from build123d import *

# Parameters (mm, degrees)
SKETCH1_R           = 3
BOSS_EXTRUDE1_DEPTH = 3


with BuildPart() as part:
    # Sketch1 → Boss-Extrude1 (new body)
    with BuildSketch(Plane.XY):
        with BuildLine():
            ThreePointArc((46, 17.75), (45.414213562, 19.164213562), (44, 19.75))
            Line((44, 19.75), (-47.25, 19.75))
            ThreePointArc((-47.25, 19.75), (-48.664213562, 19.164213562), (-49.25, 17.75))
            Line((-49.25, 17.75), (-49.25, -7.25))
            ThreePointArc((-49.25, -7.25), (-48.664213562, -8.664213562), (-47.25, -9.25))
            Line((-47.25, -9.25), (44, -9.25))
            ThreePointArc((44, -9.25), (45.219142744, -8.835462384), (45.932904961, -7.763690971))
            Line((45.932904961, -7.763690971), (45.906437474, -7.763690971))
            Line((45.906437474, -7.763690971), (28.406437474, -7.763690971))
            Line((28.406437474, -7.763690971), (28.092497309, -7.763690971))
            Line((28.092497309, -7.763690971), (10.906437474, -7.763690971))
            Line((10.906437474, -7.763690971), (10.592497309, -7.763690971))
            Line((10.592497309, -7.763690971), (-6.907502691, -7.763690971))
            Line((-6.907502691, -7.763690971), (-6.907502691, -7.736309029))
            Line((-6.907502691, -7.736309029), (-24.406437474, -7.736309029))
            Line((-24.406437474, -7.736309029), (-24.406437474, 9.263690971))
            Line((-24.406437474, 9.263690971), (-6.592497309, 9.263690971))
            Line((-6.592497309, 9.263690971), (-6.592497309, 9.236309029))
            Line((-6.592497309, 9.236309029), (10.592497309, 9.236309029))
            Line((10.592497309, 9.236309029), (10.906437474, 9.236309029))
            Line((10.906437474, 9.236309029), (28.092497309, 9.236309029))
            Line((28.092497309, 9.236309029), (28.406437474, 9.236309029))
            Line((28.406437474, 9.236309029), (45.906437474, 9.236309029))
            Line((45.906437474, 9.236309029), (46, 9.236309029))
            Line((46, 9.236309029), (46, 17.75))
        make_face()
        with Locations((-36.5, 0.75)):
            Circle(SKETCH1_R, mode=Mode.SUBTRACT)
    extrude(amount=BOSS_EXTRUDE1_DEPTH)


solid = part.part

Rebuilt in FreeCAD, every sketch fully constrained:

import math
import FreeCAD as App
import Part
import Sketcher

V = App.Vector
Q = App.Units.Quantity

doc = App.newDocument("Part")
body = doc.addObject("PartDesign::Body", "Body")

# Sketch on XY plane
sketch1 = body.newObject("Sketcher::SketchObject", "Sketch")
sketch1.AttachmentSupport = (doc.getObject("XY_Plane"), [""])
sketch1.MapMode = "FlatFace"
sketch1.addGeometry(Part.ArcOfCircle(Part.Circle(V(44, 17.75, 0), V(0, 0, 1), 2), math.radians(0), math.radians(90)), False)
sketch1.addGeometry(Part.LineSegment(V(44, 19.75, 0), V(-47.25, 19.75, 0)), False)
sketch1.addGeometry(Part.ArcOfCircle(Part.Circle(V(-47.25, 17.75, 0), V(0, 0, 1), 2), math.radians(90), math.radians(180)), False)
sketch1.addGeometry(Part.LineSegment(V(-49.25, 17.75, 0), V(-49.25, -7.25, 0)), False)
sketch1.addGeometry(Part.ArcOfCircle(Part.Circle(V(-47.25, -7.25, 0), V(0, 0, 1), 2), math.radians(-180), math.radians(-90)), False)
sketch1.addGeometry(Part.LineSegment(V(-47.25, -9.25, 0), V(44, -9.25, 0)), False)
sketch1.addGeometry(Part.ArcOfCircle(Part.Circle(V(44, -7.25, 0), V(0, 0, 1), 2), math.radians(-90), math.radians(-15)), False)
sketch1.addGeometry(Part.LineSegment(V(45.933, -7.764, 0), V(-6.908, -7.764, 0)), False)
sketch1.addGeometry(Part.LineSegment(V(-6.908, -7.764, 0), V(-6.908, -7.736, 0)), False)
sketch1.addGeometry(Part.LineSegment(V(-6.908, -7.736, 0), V(-24.406, -7.736, 0)), False)
sketch1.addGeometry(Part.LineSegment(V(-24.406, -7.736, 0), V(-24.406, 9.264, 0)), False)
sketch1.addGeometry(Part.LineSegment(V(-24.406, 9.264, 0), V(-6.592, 9.264, 0)), False)
sketch1.addGeometry(Part.LineSegment(V(-6.592, 9.264, 0), V(-6.592, 9.236, 0)), False)
sketch1.addGeometry(Part.LineSegment(V(-6.592, 9.236, 0), V(46, 9.236, 0)), False)
sketch1.addGeometry(Part.LineSegment(V(46, 9.236, 0), V(46, 17.75, 0)), False)
sketch1.addGeometry(Part.Circle(V(-36.5, 0.75, 0), V(0, 0, 1), 3), False)
sketch1.addConstraint(Sketcher.Constraint("Tangent", 0, 2, 1, 1))
sketch1.addConstraint(Sketcher.Constraint("Tangent", 1, 2, 2, 1))
sketch1.addConstraint(Sketcher.Constraint("Tangent", 2, 2, 3, 1))
sketch1.addConstraint(Sketcher.Constraint("Tangent", 3, 2, 4, 1))
sketch1.addConstraint(Sketcher.Constraint("Tangent", 4, 2, 5, 1))
sketch1.addConstraint(Sketcher.Constraint("Tangent", 5, 2, 6, 1))
sketch1.addConstraint(Sketcher.Constraint("Coincident", 6, 2, 7, 1))
sketch1.addConstraint(Sketcher.Constraint("Coincident", 7, 2, 8, 1))
sketch1.addConstraint(Sketcher.Constraint("Coincident", 8, 2, 9, 1))
sketch1.addConstraint(Sketcher.Constraint("Coincident", 9, 2, 10, 1))
sketch1.addConstraint(Sketcher.Constraint("Coincident", 10, 2, 11, 1))
sketch1.addConstraint(Sketcher.Constraint("Coincident", 11, 2, 12, 1))
sketch1.addConstraint(Sketcher.Constraint("Coincident", 12, 2, 13, 1))
sketch1.addConstraint(Sketcher.Constraint("Coincident", 13, 2, 14, 1))
sketch1.addConstraint(Sketcher.Constraint("Tangent", 14, 2, 0, 1))
sketch1.addConstraint(Sketcher.Constraint("Horizontal", 1))
sketch1.addConstraint(Sketcher.Constraint("Vertical", 3))
sketch1.addConstraint(Sketcher.Constraint("Horizontal", 5))
sketch1.addConstraint(Sketcher.Constraint("Horizontal", 7))
sketch1.addConstraint(Sketcher.Constraint("Vertical", 8))
sketch1.addConstraint(Sketcher.Constraint("Horizontal", 9))
sketch1.addConstraint(Sketcher.Constraint("Vertical", 10))
sketch1.addConstraint(Sketcher.Constraint("Horizontal", 11))
sketch1.addConstraint(Sketcher.Constraint("Vertical", 12))
sketch1.addConstraint(Sketcher.Constraint("Horizontal", 13))
sketch1.addConstraint(Sketcher.Constraint("Vertical", 14))
sketch1.addConstraint(Sketcher.Constraint("Equal", 0, 2))
sketch1.addConstraint(Sketcher.Constraint("Equal", 2, 4))
sketch1.addConstraint(Sketcher.Constraint("Equal", 4, 6))
sketch1.addConstraint(Sketcher.Constraint("Vertical", 0, 3, 6, 3))
sketch1.addConstraint(Sketcher.Constraint("Equal", 8, 12))
sketch1.addConstraint(Sketcher.Constraint("Diameter", 15, Q("6 mm")))
sketch1.addConstraint(Sketcher.Constraint("Radius", 0, Q("2 mm")))
sketch1.addConstraint(Sketcher.Constraint("DistanceY", 3, 2, 3, 1, Q("25 mm")))
sketch1.addConstraint(Sketcher.Constraint("DistanceY", 10, 1, 10, 2, Q("17 mm")))
sketch1.addConstraint(Sketcher.Constraint("DistanceX", -1, 1, 0, 3, Q("44 mm")))
sketch1.addConstraint(Sketcher.Constraint("DistanceY", 4, 3, 15, 3, Q("8 mm")))
sketch1.addConstraint(Sketcher.Constraint("DistanceX", 1, 2, 1, 1, Q("91.25 mm")))
sketch1.addConstraint(Sketcher.Constraint("DistanceX", 15, 3, -1, 1, Q("36.5 mm")))
sketch1.addConstraint(Sketcher.Constraint("DistanceY", -1, 1, 0, 3, Q("17.75 mm")))
sketch1.addConstraint(Sketcher.Constraint("DistanceX", 11, 1, 11, 2, Q("17.81394 mm")))
sketch1.addConstraint(Sketcher.Constraint("DistanceY", 8, 1, 8, 2, Q("0.027382 mm")))
sketch1.addConstraint(Sketcher.Constraint("DistanceY", 14, 1, 14, 2, Q("8.513691 mm")))
sketch1.addConstraint(Sketcher.Constraint("DistanceX", 7, 2, 7, 1, Q("52.840408 mm")))
sketch1.addConstraint(Sketcher.Constraint("DistanceX", 9, 2, 9, 1, Q("17.498935 mm")))
pad1 = body.newObject("PartDesign::Pad", "Pad")
pad1.Profile = sketch1
pad1.Length = 3

doc.recompute()
